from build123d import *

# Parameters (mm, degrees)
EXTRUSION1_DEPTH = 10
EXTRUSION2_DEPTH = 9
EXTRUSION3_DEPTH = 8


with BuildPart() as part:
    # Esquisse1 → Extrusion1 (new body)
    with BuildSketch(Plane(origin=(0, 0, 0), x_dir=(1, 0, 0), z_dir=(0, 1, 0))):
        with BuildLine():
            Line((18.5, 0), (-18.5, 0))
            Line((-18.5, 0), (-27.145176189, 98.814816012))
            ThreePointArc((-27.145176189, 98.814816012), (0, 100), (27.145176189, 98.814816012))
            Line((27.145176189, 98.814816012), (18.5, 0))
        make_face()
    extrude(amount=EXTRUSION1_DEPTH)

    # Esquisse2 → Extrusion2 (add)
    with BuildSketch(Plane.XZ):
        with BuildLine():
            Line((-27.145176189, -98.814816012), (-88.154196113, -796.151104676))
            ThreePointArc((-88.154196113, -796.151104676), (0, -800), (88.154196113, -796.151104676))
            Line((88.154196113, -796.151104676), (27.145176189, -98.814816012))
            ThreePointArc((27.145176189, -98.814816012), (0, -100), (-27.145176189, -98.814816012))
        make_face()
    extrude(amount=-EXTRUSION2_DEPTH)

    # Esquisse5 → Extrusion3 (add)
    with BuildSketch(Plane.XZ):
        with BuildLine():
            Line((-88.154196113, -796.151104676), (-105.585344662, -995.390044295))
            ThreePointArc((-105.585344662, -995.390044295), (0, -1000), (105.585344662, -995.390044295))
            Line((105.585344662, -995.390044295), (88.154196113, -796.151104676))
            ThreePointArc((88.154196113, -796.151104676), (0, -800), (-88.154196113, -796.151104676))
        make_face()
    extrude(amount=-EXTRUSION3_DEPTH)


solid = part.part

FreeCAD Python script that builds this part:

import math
import FreeCAD as App
import Part
import Sketcher
from FreeCAD import Vector
Q = App.Units.Quantity

doc = App.newDocument("Part")
body = doc.addObject("PartDesign::Body", "Body")

sketch1 = body.newObject("Sketcher::SketchObject", "Sketch")
sketch1.AttachmentSupport = (doc.getObject("XZ_Plane"), [""])
sketch1.MapMode = "FlatFace"
sketch1.addGeometry([
    Part.LineSegment(Vector(-18.5, 0, 0), Vector(18.5, 0, 0)),
    Part.LineSegment(Vector(18.5, 0, 0), Vector(27.145176, -98.814816, 0)),
    Part.ArcOfCircle(Part.Circle(Vector(0, 211.455968, 0), Vector(0, 0, 1), 311.455968), math.radians(-95), math.radians(-85)),
    Part.LineSegment(Vector(-27.145176, -98.814816, 0), Vector(-18.5, 0, 0)),
], False)
sketch1.addConstraint([
    Sketcher.Constraint("Coincident", 0, 2, 1, 1),
    Sketcher.Constraint("Coincident", 1, 2, 2, 2),
    Sketcher.Constraint("Coincident", 2, 1, 3, 1),
    Sketcher.Constraint("Coincident", 3, 2, 0, 1),
    Sketcher.Constraint("Horizontal", 0),
    Sketcher.Constraint("Symmetric", 0, 2, 3, 2, -1, 1),
    Sketcher.Constraint("Symmetric", 1, 2, 2, 1, -2),
    Sketcher.Constraint("DistanceX", 0, 1, 0, 2, Q("37 mm")),
    Sketcher.Constraint("Angle", 1, Q("-85 deg")),
    Sketcher.Constraint("Radius", 2, Q("311.455968 mm")),
    Sketcher.Constraint("Distance", 1, Q("99.192273 mm")),
])
pad1 = body.newObject("PartDesign::Pad", "Pad")
pad1.Profile = sketch1
pad1.Length = 10
pad1.Reversed = True

sketch2 = body.newObject("Sketcher::SketchObject", "Sketch001")
sketch2.AttachmentSupport = (doc.getObject("XZ_Plane"), [""])
sketch2.MapMode = "FlatFace"
sketch2.addGeometry([
    Part.LineSegment(Vector(-27.145176, -98.814816, 0), Vector(-88.154196, -796.151105, 0)),
    Part.ArcOfCircle(Part.Circle(Vector(0, 211.455968, 0), Vector(0, 0, 1), 1011.455968), math.radians(-95), math.radians(-85)),
    Part.LineSegment(Vector(88.154196, -796.151105, 0), Vector(27.145176, -98.814816, 0)),
    Part.ArcOfCircle(Part.Circle(Vector(0, 211.455968, 0), Vector(0, 0, 1), 311.455968), math.radians(-95), math.radians(-85)),
], False)
sketch2.addConstraint([
    Sketcher.Constraint("Coincident", 0, 2, 1, 1),
    Sketcher.Constraint("Coincident", 1, 2, 2, 1),
    Sketcher.Constraint("Coincident", 2, 2, 3, 2),
    Sketcher.Constraint("Coincident", 3, 1, 0, 1),
    Sketcher.Constraint("Coincident", 3, 3, 1, 3),
    Sketcher.Constraint("Symmetric", 2, 2, 3, 1, -2),
    Sketcher.Constraint("Angle", 0, Q("-95 deg")),
    Sketcher.Constraint("Angle", 2, Q("95 deg")),
    Sketcher.Constraint("Distance", 0, Q("700 mm")),
    Sketcher.Constraint("Radius", 1, Q("1011.455968 mm")),
    Sketcher.Constraint("DistanceY", -1, 1, 1, 3, Q("211.455968 mm")),
    Sketcher.Constraint("DistanceX", 0, 2, -1, 1, Q("88.154196 mm")),
])
pad2 = body.newObject("PartDesign::Pad", "Pad001")
pad2.Profile = sketch2
pad2.Length = 9
pad2.Reversed = True

sketch3 = body.newObject("Sketcher::SketchObject", "Sketch002")
sketch3.AttachmentSupport = (doc.getObject("XZ_Plane"), [""])
sketch3.MapMode = "FlatFace"
sketch3.addGeometry([
    Part.LineSegment(Vector(-88.154196, -796.151105, 0), Vector(-105.585345, -995.390044, 0)),
    Part.ArcOfCircle(Part.Circle(Vector(0, 211.455968, 0), Vector(0, 0, 1), 1211.455968), math.radians(-95), math.radians(-85)),
    Part.LineSegment(Vector(105.585345, -995.390044, 0), Vector(88.154196, -796.151105, 0)),
    Part.ArcOfCircle(Part.Circle(Vector(0, 211.455968, 0), Vector(0, 0, 1), 1011.455968), math.radians(-95), math.radians(-85)),
], False)
sketch3.addConstraint([
    Sketcher.Constraint("Coincident", 0, 2, 1, 1),
    Sketcher.Constraint("Coincident", 1, 2, 2, 1),
    Sketcher.Constraint("Coincident", 2, 2, 3, 2),
    Sketcher.Constraint("Coincident", 3, 1, 0, 1),
    Sketcher.Constraint("Coincident", 3, 3, 1, 3),
    Sketcher.Constraint("PointOnObject", 1, 3, -2),
    Sketcher.Constraint("Angle", 0, Q("-95 deg")),
    Sketcher.Constraint("Angle", 2, Q("95 deg")),
    Sketcher.Constraint("Distance", 0, Q("200 mm")),
    Sketcher.Constraint("Radius", 1, Q("1211.455968 mm")),
    Sketcher.Constraint("DistanceY", 0, 2, 3, 3, Q("1206.846012 mm")),
    Sketcher.Constraint("DistanceX", 0, 2, 2, 2, Q("193.739541 mm")),
    Sketcher.Constraint("DistanceY", -1, 1, 1, 3, Q("211.455968 mm")),
])
pad3 = body.newObject("PartDesign::Pad", "Pad002")
pad3.Profile = sketch3
pad3.Length = 8
pad3.Reversed = True

doc.recompute()
